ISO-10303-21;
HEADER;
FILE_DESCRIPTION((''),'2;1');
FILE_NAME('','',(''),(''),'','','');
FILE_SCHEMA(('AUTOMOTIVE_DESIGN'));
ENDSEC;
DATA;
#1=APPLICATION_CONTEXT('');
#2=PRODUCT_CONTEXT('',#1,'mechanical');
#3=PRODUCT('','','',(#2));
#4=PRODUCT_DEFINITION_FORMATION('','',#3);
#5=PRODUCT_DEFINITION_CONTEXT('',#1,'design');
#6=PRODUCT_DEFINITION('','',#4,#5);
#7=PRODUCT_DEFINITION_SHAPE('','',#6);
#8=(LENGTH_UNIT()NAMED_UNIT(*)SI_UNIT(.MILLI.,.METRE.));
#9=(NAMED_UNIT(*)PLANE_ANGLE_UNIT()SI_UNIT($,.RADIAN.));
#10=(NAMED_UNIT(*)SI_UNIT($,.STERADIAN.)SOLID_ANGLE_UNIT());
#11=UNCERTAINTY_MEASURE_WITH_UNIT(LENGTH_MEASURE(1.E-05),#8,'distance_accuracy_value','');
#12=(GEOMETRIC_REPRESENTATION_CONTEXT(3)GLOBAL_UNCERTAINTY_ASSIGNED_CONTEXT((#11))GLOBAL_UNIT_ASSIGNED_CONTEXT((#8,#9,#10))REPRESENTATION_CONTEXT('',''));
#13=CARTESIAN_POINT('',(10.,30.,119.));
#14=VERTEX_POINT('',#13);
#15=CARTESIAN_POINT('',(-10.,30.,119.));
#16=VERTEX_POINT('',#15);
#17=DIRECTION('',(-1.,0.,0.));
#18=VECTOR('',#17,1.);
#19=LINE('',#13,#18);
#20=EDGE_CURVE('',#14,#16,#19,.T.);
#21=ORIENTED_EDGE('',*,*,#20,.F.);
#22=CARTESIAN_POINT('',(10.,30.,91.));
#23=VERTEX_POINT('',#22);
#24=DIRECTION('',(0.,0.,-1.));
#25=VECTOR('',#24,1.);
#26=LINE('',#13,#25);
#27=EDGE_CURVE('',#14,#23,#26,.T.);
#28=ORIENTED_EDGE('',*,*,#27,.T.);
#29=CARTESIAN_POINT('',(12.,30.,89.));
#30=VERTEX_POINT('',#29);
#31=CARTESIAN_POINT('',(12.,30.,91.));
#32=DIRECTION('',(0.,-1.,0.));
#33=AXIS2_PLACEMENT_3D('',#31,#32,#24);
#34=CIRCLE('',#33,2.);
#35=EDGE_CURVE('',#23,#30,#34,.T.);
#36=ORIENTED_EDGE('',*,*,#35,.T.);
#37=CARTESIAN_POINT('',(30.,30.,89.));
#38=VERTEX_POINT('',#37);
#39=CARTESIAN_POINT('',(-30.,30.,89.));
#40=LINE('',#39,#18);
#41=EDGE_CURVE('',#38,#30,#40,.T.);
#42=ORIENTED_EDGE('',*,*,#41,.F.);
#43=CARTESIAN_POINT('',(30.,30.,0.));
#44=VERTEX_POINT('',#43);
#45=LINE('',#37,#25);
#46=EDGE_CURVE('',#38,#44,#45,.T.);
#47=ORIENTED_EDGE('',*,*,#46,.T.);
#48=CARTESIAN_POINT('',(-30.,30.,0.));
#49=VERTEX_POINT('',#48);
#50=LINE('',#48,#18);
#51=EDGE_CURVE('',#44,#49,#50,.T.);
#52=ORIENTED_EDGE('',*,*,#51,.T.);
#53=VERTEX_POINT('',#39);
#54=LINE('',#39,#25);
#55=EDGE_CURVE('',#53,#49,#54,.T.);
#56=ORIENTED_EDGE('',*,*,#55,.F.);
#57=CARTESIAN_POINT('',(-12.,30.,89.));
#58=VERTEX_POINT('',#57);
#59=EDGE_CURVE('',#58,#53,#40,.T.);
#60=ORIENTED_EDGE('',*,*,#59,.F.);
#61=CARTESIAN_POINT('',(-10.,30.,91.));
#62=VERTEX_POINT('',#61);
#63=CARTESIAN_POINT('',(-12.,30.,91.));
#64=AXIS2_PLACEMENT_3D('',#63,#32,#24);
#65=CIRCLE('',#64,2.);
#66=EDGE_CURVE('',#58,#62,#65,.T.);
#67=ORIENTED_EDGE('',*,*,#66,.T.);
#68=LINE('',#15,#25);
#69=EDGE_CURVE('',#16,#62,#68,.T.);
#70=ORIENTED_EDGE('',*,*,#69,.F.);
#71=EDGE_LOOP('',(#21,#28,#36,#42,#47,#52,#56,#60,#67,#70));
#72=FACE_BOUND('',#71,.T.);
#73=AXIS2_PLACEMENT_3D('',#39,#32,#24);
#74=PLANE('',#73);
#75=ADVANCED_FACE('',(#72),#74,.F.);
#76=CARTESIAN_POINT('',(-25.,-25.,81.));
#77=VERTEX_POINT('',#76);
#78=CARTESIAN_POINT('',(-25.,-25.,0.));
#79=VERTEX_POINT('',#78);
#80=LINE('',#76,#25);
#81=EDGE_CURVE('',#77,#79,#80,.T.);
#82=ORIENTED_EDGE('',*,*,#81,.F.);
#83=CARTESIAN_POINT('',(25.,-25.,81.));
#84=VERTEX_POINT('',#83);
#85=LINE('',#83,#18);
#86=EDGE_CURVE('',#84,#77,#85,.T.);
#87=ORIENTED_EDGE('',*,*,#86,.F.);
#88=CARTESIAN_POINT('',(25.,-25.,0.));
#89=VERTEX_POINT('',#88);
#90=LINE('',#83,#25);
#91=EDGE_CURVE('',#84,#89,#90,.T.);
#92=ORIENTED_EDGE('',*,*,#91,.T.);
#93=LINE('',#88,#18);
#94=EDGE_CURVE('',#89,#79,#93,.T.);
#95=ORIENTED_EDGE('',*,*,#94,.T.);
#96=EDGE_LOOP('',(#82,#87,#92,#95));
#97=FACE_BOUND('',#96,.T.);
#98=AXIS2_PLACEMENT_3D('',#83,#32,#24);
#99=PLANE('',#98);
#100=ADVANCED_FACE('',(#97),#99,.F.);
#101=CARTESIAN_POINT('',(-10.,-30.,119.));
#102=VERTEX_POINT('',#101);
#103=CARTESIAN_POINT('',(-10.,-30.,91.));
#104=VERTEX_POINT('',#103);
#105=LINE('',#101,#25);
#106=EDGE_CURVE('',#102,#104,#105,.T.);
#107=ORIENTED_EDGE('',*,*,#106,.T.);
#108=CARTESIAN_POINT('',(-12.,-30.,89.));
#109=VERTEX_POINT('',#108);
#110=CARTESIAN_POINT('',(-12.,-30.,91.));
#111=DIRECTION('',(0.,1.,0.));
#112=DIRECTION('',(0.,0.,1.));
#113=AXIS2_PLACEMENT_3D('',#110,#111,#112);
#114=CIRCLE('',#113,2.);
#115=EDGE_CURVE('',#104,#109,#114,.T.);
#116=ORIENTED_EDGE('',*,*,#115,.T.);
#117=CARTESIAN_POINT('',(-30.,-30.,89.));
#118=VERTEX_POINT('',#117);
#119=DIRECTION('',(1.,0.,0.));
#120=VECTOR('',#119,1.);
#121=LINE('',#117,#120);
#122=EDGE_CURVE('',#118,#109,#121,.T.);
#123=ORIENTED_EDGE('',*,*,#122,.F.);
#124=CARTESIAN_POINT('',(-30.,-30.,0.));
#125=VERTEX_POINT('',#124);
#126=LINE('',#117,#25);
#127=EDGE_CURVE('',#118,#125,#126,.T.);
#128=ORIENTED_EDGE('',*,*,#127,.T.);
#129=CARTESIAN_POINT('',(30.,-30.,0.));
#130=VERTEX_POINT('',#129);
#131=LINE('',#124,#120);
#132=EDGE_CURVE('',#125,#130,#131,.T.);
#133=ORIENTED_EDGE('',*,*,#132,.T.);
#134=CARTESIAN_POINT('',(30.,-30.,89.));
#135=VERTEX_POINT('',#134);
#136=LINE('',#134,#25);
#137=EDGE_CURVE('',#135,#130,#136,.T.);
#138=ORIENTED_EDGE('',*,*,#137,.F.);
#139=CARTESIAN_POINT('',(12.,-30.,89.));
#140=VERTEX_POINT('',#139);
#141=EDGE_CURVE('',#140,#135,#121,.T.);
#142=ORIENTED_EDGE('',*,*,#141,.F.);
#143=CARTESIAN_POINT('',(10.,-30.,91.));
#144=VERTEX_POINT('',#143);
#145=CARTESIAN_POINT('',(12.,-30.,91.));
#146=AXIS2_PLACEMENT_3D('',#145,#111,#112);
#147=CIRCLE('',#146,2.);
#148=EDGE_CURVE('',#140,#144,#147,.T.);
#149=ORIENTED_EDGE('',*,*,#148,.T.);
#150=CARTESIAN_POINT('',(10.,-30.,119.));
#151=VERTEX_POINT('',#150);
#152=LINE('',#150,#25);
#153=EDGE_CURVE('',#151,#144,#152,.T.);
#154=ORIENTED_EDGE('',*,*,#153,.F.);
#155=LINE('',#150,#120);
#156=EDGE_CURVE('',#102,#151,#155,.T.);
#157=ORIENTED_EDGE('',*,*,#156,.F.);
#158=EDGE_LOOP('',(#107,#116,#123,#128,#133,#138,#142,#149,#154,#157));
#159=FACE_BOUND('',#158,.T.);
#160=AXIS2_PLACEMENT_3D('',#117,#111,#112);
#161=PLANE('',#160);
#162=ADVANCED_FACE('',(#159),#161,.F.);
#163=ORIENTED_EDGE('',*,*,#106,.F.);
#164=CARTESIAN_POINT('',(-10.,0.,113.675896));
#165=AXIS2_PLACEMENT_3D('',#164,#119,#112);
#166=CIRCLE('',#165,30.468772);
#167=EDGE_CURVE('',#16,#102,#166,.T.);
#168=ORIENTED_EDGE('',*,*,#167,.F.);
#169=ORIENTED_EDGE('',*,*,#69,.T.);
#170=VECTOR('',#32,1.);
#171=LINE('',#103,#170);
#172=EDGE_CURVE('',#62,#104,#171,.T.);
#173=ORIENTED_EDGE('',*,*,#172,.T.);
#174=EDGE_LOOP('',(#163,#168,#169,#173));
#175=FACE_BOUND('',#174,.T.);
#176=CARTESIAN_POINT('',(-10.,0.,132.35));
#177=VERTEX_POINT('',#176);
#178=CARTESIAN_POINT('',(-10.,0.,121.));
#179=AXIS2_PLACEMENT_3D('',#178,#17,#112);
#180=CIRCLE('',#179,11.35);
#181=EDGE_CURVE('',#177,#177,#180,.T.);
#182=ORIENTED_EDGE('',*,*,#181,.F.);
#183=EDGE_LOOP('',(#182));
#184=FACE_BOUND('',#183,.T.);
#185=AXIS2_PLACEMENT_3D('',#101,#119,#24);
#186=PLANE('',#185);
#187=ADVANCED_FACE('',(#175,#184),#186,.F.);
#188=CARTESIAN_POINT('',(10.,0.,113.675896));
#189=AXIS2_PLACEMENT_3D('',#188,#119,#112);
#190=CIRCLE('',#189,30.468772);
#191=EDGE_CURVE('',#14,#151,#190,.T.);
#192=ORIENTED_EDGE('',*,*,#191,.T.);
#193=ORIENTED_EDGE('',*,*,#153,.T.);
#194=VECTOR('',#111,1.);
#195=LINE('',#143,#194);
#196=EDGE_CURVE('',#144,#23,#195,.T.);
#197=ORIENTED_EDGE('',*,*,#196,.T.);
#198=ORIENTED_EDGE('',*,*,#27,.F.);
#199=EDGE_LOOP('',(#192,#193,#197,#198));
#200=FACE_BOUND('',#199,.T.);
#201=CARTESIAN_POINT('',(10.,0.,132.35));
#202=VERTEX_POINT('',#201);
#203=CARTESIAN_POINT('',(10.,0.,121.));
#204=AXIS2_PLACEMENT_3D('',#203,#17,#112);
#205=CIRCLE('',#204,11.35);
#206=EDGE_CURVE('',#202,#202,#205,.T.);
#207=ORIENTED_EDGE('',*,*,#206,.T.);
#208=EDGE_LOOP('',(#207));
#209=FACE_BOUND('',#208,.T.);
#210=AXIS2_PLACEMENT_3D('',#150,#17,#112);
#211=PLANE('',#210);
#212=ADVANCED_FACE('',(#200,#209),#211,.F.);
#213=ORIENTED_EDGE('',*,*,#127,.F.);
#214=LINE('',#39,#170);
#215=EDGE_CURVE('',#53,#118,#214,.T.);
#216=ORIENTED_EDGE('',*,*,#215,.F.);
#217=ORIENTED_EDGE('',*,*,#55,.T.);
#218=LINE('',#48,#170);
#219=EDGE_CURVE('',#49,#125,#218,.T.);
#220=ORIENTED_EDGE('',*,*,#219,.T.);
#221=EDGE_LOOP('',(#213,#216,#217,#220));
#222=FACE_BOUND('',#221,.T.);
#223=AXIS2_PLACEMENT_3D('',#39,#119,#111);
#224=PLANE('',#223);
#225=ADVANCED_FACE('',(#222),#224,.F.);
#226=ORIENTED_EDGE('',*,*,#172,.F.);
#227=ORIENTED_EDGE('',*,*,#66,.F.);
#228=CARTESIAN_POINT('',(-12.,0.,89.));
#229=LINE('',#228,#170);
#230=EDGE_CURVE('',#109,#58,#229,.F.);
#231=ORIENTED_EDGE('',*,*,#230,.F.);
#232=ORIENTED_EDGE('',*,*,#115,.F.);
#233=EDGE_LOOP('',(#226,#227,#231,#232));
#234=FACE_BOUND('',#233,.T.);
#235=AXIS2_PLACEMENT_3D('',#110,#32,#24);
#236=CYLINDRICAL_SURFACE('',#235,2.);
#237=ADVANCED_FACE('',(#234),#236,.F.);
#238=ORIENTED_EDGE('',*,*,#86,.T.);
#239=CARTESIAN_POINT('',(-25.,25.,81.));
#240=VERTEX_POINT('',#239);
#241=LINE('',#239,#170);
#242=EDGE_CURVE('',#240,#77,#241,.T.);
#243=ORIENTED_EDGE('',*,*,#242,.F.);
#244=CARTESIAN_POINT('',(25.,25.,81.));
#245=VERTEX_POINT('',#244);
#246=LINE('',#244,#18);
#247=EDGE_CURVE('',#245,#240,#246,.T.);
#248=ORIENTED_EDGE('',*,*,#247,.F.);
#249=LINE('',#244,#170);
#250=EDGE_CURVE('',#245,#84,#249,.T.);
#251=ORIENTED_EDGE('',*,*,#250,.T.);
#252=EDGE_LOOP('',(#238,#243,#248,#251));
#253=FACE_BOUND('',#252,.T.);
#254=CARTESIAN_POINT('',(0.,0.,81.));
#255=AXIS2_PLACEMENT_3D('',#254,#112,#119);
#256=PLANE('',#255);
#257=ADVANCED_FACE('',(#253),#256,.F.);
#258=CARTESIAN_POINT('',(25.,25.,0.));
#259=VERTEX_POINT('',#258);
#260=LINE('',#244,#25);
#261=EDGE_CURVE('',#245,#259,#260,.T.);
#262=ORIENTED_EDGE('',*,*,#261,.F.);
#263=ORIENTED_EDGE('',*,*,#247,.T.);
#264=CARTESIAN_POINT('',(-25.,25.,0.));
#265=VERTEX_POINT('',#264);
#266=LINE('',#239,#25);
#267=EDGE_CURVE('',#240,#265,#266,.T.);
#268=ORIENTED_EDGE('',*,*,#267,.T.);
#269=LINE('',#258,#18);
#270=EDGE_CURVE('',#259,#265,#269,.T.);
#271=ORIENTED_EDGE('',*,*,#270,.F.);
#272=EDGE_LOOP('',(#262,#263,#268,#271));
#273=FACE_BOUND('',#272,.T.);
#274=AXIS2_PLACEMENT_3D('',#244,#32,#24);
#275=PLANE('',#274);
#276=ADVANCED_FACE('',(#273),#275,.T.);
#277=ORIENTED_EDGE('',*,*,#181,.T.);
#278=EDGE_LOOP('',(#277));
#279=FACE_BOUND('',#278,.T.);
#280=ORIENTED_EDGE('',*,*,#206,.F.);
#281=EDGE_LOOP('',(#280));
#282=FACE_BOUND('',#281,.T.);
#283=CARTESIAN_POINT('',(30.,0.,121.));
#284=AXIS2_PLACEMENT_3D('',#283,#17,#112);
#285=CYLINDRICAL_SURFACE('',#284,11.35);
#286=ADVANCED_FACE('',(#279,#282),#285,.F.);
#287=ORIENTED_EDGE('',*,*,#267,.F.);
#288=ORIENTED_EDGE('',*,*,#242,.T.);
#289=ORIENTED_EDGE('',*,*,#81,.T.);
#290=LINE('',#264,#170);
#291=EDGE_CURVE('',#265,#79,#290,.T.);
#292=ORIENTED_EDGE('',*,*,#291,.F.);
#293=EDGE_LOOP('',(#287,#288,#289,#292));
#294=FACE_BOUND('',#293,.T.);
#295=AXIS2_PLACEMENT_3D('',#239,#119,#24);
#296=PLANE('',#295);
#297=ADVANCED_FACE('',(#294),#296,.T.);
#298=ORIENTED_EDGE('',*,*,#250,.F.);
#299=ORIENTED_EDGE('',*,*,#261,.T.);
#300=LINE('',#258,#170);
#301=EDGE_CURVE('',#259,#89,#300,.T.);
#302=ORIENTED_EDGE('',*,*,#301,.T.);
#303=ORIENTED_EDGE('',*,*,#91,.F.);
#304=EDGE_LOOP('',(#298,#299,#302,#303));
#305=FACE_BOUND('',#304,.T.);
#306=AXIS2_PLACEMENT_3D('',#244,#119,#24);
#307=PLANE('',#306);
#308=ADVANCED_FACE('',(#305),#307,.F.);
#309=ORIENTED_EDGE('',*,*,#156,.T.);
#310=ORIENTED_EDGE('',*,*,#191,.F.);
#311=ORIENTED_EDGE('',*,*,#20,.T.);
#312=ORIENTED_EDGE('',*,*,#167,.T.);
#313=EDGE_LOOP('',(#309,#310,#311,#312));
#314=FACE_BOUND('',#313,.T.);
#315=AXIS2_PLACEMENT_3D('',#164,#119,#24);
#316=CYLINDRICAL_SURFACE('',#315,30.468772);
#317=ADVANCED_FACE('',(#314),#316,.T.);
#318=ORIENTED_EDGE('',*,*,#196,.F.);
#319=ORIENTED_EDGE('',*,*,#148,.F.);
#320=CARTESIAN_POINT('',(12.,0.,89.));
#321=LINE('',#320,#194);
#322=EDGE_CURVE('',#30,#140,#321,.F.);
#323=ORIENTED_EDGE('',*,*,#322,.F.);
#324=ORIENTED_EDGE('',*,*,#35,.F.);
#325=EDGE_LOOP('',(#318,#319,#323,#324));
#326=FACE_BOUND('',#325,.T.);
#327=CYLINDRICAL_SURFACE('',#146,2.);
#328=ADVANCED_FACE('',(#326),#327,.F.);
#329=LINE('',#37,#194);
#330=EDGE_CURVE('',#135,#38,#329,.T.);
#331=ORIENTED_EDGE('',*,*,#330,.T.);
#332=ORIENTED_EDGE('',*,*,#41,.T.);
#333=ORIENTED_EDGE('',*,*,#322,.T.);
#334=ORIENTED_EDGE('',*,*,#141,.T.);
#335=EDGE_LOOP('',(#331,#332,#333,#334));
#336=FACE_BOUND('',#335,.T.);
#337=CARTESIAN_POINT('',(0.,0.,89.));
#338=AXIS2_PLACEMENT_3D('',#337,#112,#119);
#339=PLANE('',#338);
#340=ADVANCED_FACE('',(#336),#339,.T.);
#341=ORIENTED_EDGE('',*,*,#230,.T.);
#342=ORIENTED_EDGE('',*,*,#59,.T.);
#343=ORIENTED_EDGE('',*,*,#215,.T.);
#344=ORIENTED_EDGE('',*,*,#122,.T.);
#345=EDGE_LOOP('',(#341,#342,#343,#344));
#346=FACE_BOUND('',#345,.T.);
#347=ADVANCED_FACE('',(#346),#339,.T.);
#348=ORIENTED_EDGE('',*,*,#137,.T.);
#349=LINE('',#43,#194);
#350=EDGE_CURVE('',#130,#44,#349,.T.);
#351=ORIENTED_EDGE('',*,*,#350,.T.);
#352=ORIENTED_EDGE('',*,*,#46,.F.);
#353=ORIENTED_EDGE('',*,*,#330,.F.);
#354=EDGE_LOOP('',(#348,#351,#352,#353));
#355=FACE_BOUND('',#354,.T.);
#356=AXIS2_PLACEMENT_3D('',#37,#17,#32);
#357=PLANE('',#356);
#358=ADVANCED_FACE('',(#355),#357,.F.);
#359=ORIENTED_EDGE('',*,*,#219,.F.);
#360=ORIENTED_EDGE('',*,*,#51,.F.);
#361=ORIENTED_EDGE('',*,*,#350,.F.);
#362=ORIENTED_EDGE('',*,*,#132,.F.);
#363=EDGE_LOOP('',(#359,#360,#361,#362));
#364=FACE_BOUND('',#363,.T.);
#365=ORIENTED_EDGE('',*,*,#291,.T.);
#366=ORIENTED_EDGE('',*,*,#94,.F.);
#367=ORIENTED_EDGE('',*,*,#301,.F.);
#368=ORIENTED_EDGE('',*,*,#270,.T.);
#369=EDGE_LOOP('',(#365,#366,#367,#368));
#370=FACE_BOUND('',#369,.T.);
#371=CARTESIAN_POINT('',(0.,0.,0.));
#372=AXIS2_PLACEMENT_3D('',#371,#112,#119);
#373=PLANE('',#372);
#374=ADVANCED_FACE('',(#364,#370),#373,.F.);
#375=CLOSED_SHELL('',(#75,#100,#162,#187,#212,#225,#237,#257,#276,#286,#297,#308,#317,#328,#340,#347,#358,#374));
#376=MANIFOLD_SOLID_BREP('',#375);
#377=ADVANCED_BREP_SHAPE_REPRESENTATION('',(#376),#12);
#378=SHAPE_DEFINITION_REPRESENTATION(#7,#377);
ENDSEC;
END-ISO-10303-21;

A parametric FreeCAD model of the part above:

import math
import FreeCAD as App
import Part
import Sketcher
from FreeCAD import Vector
Q = App.Units.Quantity


def edges_at(feature, points):
    """Names of the edges that pass closest to the given points."""
    edges = feature.Shape.Edges
    near = lambda p: min(range(len(edges)), key=lambda i: edges[i].distToShape(Part.Vertex(*p))[0])
    return sorted({f"Edge{near(p) + 1}" for p in points})

doc = App.newDocument("Part")
body = doc.addObject("PartDesign::Body", "Body")

sketch1 = body.newObject("Sketcher::SketchObject", "Sketch")
sketch1.AttachmentSupport = (doc.getObject("XY_Plane"), [""])
sketch1.MapMode = "FlatFace"
sketch1.addGeometry(Part.LineSegment(Vector(-30, 30, 0), Vector(-30, -30, 0)), False)
sketch1.addGeometry(Part.LineSegment(Vector(-30, -30, 0), Vector(30, -30, 0)), False)
sketch1.addGeometry(Part.LineSegment(Vector(30, -30, 0), Vector(30, 30, 0)), False)
sketch1.addGeometry(Part.LineSegment(Vector(30, 30, 0), Vector(-30, 30, 0)), False)
sketch1.addConstraint(Sketcher.Constraint("Coincident", 0, 2, 1, 1))
sketch1.addConstraint(Sketcher.Constraint("Coincident", 1, 2, 2, 1))
sketch1.addConstraint(Sketcher.Constraint("Coincident", 2, 2, 3, 1))
sketch1.addConstraint(Sketcher.Constraint("Coincident", 3, 2, 0, 1))
sketch1.addConstraint(Sketcher.Constraint("Vertical", 0))
sketch1.addConstraint(Sketcher.Constraint("Horizontal", 1))
sketch1.addConstraint(Sketcher.Constraint("Vertical", 2))
sketch1.addConstraint(Sketcher.Constraint("Horizontal", 3))
sketch1.addConstraint(Sketcher.Constraint("Symmetric", 0, 2, 2, 2, -1, 1))
sketch1.addConstraint(Sketcher.Constraint("Equal", 3, 0))
sketch1.addConstraint(Sketcher.Constraint("DistanceX", 1, 1, 1, 2, Q("60 mm")))
pad1 = body.newObject("PartDesign::Pad", "Pad")
pad1.Profile = sketch1
pad1.Length = 89

sketch2 = body.newObject("Sketcher::SketchObject", "Sketch001")
sketch2.AttachmentSupport = (doc.getObject("XY_Plane"), [""])
sketch2.MapMode = "FlatFace"
sketch2.AttachmentOffset = App.Placement(Vector(0, 0, 89), App.Rotation())
sketch2.addGeometry(Part.LineSegment(Vector(-10, 30, 0), Vector(-10, -30, 0)), False)
sketch2.addGeometry(Part.LineSegment(Vector(-10, -30, 0), Vector(10, -30, 0)), False)
sketch2.addGeometry(Part.LineSegment(Vector(10, -30, 0), Vector(10, 30, 0)), False)
sketch2.addGeometry(Part.LineSegment(Vector(10, 30, 0), Vector(-10, 30, 0)), False)
sketch2.addConstraint(Sketcher.Constraint("Coincident", 0, 2, 1, 1))
sketch2.addConstraint(Sketcher.Constraint("Coincident", 1, 2, 2, 1))
sketch2.addConstraint(Sketcher.Constraint("Coincident", 2, 2, 3, 1))
sketch2.addConstraint(Sketcher.Constraint("Coincident", 3, 2, 0, 1))
sketch2.addConstraint(Sketcher.Constraint("Vertical", 0))
sketch2.addConstraint(Sketcher.Constraint("Horizontal", 1))
sketch2.addConstraint(Sketcher.Constraint("Vertical", 2))
sketch2.addConstraint(Sketcher.Constraint("Horizontal", 3))
sketch2.addConstraint(Sketcher.Constraint("Symmetric", 0, 2, 2, 2, -1, 1))
sketch2.addConstraint(Sketcher.Constraint("DistanceX", 1, 1, 1, 2, Q("20 mm")))
sketch2.addConstraint(Sketcher.Constraint("DistanceY", 0, 2, 0, 1, Q("60 mm")))
pad2 = body.newObject("PartDesign::Pad", "Pad001")
pad2.Profile = sketch2
pad2.Length = 30

sketch3 = body.newObject("Sketcher::SketchObject", "Sketch002")
sketch3.AttachmentSupport = (doc.getObject("YZ_Plane"), [""])
sketch3.MapMode = "FlatFace"
sketch3.AttachmentOffset = App.Placement(Vector(0, 0, 10), App.Rotation())
sketch3.addGeometry(Part.LineSegment(Vector(-30, 119, 0), Vector(30, 119, 0)), False)
sketch3.addGeometry(Part.ArcOfCircle(Part.Circle(Vector(0, 114, 0), Vector(0, 0, 1), 30), math.radians(10), math.radians(170)), False)
sketch3.addConstraint(Sketcher.Constraint("Coincident", 0, 1, 1, 2))
sketch3.addConstraint(Sketcher.Constraint("Coincident", 1, 1, 0, 2))
sketch3.addConstraint(Sketcher.Constraint("Horizontal", 0))
sketch3.addConstraint(Sketcher.Constraint("PointOnObject", 1, 3, -2))
sketch3.addConstraint(Sketcher.Constraint("DistanceX", 0, 1, 0, 2, Q("60 mm")))
sketch3.addConstraint(Sketcher.Constraint("DistanceY", -1, 1, 0, 1, Q("119 mm")))
sketch3.addConstraint(Sketcher.Constraint("Radius", 1, Q("30.468772 mm")))
pad3 = body.newObject("PartDesign::Pad", "Pad002")
pad3.Profile = sketch3
pad3.Length = 20
pad3.Reversed = True
doc.recompute()

fillet = body.newObject("PartDesign::Fillet", "Fillet")
fillet.Base = (pad3, edges_at(pad3, [(-10, 0, 89), (10, 0, 89)]))
fillet.Radius = 2

sketch4 = body.newObject("Sketcher::SketchObject", "Sketch003")
sketch4.AttachmentSupport = (doc.getObject("XY_Plane"), [""])
sketch4.MapMode = "FlatFace"
sketch4.addGeometry(Part.LineSegment(Vector(25, 25, 0), Vector(25, -25, 0)), False)
sketch4.addGeometry(Part.LineSegment(Vector(25, -25, 0), Vector(-25, -25, 0)), False)
sketch4.addGeometry(Part.LineSegment(Vector(-25, -25, 0), Vector(-25, 25, 0)), False)
sketch4.addGeometry(Part.LineSegment(Vector(-25, 25, 0), Vector(25, 25, 0)), False)
sketch4.addConstraint(Sketcher.Constraint("Coincident", 0, 2, 1, 1))
sketch4.addConstraint(Sketcher.Constraint("Coincident", 1, 2, 2, 1))
sketch4.addConstraint(Sketcher.Constraint("Coincident", 2, 2, 3, 1))
sketch4.addConstraint(Sketcher.Constraint("Coincident", 3, 2, 0, 1))
sketch4.addConstraint(Sketcher.Constraint("Vertical", 0))
sketch4.addConstraint(Sketcher.Constraint("Horizontal", 1))
sketch4.addConstraint(Sketcher.Constraint("Vertical", 2))
sketch4.addConstraint(Sketcher.Constraint("Horizontal", 3))
sketch4.addConstraint(Sketcher.Constraint("Symmetric", 0, 2, 2, 2, -1, 1))
sketch4.addConstraint(Sketcher.Constraint("Equal", 3, 0))
sketch4.addConstraint(Sketcher.Constraint("DistanceX", 1, 2, 1, 1, Q("50 mm")))
pocket1 = body.newObject("PartDesign::Pocket", "Pocket")
pocket1.Profile = sketch4
pocket1.Length = 81
pocket1.Reversed = True

sketch5 = body.newObject("Sketcher::SketchObject", "Sketch004")
sketch5.AttachmentSupport = (doc.getObject("YZ_Plane"), [""])
sketch5.MapMode = "FlatFace"
sketch5.AttachmentOffset = App.Placement(Vector(0, 0, -10), App.Rotation())
sketch5.addGeometry(Part.Circle(Vector(0, 121, 0), Vector(0, 0, 1), 11), False)
sketch5.addConstraint(Sketcher.Constraint("PointOnObject", 0, 3, -2))
sketch5.addConstraint(Sketcher.Constraint("Diameter", 0, Q("22.7 mm")))
sketch5.addConstraint(Sketcher.Constraint("DistanceY", -1, 1, 0, 3, Q("121 mm")))
pocket2 = body.newObject("PartDesign::Pocket", "Pocket001")
pocket2.Profile = sketch5
pocket2.Type = "ThroughAll"
pocket2.Reversed = True

doc.recompute()
